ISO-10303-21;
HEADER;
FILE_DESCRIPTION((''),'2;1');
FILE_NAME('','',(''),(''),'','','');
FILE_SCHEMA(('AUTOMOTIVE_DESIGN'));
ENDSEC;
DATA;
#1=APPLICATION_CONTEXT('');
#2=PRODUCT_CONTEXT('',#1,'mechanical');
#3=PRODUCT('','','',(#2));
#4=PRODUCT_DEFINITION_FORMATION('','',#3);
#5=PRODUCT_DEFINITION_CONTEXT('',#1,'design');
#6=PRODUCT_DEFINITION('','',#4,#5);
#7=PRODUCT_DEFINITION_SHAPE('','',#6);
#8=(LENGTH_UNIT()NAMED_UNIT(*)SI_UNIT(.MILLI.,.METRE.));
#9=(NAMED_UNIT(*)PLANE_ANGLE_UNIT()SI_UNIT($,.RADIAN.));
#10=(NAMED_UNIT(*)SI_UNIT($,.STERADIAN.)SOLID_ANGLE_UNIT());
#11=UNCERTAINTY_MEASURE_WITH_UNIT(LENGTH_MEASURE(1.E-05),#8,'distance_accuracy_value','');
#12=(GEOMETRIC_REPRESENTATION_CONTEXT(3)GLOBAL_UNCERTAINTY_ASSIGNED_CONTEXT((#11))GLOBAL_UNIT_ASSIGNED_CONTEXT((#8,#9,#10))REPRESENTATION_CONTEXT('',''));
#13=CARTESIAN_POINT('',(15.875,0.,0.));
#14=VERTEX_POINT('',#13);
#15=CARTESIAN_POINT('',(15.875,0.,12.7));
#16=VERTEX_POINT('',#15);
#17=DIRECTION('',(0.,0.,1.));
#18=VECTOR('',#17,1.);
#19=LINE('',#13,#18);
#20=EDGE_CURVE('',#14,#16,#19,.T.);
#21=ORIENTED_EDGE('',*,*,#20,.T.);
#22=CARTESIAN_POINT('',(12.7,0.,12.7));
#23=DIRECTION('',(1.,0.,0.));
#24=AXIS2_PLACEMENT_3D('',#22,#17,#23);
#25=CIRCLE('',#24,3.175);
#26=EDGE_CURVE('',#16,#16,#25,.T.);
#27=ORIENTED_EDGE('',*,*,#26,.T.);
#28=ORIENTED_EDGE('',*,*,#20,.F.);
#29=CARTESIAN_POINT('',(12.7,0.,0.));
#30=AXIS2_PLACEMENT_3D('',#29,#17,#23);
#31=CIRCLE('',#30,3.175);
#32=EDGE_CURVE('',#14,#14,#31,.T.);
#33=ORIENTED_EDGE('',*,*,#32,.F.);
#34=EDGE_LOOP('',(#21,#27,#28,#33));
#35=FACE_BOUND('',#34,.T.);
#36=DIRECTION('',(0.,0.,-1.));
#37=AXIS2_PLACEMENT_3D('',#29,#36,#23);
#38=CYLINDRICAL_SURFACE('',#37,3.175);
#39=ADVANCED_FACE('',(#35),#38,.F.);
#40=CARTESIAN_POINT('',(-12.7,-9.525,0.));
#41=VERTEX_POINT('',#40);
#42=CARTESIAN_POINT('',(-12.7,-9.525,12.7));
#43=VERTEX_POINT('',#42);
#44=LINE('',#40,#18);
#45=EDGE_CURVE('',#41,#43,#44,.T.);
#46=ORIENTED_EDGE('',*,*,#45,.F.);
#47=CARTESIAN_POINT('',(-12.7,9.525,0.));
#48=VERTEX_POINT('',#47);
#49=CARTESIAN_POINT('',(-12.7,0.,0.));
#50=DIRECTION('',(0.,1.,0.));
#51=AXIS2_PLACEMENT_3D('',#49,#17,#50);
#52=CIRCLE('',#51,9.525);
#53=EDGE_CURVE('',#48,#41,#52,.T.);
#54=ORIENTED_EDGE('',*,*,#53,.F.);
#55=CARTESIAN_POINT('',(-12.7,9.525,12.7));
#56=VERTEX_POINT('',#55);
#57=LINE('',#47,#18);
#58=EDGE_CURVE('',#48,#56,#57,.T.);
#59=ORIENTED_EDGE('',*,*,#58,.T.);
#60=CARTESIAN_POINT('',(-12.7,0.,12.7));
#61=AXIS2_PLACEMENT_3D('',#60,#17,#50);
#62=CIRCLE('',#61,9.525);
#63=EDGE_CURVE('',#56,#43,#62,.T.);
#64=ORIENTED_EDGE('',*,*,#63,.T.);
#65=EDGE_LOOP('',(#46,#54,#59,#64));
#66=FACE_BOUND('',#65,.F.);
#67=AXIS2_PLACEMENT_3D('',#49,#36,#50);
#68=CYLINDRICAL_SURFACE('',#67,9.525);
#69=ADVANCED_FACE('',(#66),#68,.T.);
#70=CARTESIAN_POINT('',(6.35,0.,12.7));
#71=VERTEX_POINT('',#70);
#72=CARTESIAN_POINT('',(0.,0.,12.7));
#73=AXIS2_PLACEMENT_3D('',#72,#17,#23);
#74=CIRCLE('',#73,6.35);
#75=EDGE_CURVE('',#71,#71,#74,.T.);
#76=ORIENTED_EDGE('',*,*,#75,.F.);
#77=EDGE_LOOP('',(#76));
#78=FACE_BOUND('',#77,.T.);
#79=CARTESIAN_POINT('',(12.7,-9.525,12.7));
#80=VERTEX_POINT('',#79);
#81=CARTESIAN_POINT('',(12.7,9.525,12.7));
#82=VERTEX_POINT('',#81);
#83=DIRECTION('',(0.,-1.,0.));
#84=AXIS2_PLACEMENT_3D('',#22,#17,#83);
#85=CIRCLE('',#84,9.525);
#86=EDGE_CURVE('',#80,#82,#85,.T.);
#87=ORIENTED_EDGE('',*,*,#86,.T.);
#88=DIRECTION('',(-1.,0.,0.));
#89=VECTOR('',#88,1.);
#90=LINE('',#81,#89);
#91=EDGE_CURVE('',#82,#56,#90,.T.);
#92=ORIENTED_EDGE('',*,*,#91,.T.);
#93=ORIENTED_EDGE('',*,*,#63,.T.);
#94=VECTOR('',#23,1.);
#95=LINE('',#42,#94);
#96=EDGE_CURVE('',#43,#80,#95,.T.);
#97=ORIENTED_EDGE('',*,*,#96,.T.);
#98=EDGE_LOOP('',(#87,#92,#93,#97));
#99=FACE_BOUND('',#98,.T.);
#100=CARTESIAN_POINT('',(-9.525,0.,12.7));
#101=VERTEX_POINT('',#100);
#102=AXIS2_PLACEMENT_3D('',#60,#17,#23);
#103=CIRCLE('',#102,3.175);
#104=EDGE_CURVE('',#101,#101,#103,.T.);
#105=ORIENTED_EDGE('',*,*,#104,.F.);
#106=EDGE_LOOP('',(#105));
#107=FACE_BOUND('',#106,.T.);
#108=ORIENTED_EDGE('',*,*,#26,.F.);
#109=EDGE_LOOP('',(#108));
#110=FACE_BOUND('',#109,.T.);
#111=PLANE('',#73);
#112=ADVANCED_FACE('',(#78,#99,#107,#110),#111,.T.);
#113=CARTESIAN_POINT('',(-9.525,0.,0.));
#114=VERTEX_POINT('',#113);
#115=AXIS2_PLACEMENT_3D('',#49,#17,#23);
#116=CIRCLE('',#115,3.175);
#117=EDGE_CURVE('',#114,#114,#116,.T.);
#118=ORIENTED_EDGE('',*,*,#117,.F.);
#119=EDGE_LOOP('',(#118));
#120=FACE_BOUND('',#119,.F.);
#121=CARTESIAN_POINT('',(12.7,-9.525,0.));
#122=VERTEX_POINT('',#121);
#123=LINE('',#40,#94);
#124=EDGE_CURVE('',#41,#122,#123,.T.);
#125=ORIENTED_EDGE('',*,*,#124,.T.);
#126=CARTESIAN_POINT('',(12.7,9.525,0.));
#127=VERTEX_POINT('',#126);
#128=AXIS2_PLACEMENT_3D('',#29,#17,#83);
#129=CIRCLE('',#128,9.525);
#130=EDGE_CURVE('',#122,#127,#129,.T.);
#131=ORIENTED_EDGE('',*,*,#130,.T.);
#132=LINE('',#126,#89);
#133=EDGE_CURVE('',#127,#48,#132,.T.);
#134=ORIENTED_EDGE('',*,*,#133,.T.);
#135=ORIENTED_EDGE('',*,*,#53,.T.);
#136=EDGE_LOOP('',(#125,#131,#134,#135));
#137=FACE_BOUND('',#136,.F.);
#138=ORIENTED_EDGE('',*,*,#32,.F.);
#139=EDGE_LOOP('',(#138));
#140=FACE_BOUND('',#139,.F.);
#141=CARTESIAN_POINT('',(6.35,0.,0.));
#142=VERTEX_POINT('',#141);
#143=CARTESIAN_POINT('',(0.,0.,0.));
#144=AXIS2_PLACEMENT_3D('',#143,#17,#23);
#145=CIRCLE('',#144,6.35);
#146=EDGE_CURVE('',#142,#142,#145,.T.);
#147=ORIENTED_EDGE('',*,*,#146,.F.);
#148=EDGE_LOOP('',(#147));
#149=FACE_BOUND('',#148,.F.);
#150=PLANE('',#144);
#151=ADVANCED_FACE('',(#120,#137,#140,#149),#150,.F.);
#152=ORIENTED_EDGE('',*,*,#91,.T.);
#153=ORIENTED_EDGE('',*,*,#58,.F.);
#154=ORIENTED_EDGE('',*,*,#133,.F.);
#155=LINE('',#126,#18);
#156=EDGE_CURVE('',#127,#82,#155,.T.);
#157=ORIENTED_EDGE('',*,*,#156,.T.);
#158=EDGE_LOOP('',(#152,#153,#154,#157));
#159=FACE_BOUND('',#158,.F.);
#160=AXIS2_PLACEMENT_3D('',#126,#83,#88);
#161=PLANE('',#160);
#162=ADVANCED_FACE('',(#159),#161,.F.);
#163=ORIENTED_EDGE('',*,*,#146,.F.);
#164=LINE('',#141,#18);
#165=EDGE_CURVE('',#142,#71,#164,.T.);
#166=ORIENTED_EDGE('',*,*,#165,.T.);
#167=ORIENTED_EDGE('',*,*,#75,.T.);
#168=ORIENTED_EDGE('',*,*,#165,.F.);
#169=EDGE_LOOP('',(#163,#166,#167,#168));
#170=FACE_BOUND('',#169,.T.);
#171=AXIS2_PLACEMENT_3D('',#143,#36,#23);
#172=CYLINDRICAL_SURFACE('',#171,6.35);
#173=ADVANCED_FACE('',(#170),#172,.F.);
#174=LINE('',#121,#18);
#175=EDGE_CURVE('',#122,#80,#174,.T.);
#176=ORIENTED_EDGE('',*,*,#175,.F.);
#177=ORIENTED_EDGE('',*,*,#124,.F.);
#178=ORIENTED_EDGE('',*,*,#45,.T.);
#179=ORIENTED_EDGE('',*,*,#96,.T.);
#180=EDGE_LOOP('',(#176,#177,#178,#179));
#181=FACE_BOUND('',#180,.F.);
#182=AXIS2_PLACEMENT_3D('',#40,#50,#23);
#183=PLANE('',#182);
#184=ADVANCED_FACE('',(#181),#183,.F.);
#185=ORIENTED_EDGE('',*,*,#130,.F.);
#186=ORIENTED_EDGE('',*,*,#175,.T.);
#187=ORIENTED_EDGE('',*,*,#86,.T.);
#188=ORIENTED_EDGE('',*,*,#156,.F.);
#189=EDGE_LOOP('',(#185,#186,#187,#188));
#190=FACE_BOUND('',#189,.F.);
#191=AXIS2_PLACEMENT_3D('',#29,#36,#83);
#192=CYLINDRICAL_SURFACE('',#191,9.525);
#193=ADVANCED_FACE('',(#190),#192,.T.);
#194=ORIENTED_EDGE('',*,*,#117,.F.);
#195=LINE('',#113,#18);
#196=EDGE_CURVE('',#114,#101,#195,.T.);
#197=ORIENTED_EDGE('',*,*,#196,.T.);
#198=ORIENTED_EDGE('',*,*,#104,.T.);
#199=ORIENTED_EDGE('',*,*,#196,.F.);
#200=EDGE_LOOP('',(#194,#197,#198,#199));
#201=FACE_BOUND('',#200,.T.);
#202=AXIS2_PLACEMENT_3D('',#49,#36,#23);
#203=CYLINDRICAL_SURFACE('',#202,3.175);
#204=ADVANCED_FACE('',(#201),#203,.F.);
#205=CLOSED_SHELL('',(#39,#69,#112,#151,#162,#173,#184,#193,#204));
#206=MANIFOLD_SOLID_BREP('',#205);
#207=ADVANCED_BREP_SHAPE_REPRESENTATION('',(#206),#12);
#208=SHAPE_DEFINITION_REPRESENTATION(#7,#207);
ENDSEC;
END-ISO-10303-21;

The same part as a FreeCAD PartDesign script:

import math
import FreeCAD as App
import Part
import Sketcher

V = App.Vector
Q = App.Units.Quantity

doc = App.newDocument("Part")
body = doc.addObject("PartDesign::Body", "Body")

# Sketch on XY plane
sketch1 = body.newObject("Sketcher::SketchObject", "Sketch")
sketch1.AttachmentSupport = (doc.getObject("XY_Plane"), [""])
sketch1.MapMode = "FlatFace"
sketch1.addGeometry([
    Part.ArcOfCircle(Part.Circle(V(12.7, 0, 0), V(0, 0, 1), 9.5), math.radians(-90), math.radians(90)),  # 0
    Part.LineSegment(V(12.7, 9.5, 0), V(-12.7, 9.5, 0)),  # 1
    Part.ArcOfCircle(Part.Circle(V(-12.7, 0, 0), V(0, 0, 1), 9.5), math.radians(90), math.radians(270)),  # 2
    Part.LineSegment(V(-12.7, -9.5, 0), V(12.7, -9.5, 0)),  # 3
    Part.Circle(V(-12.7, 0, 0), V(0, 0, 1), 3.2),  # 4
    Part.Circle(V(0, 0, 0), V(0, 0, 1), 6.3),  # 5
    Part.Circle(V(12.7, 0, 0), V(0, 0, 1), 3.2),  # 6
], False)
sketch1.addConstraint([
    Sketcher.Constraint("Tangent", 0, 2, 1, 1),
    Sketcher.Constraint("Tangent", 1, 2, 2, 1),
    Sketcher.Constraint("Tangent", 2, 2, 3, 1),
    Sketcher.Constraint("Tangent", 3, 2, 0, 1),
    Sketcher.Constraint("Horizontal", 1),
    Sketcher.Constraint("Horizontal", 3),
    Sketcher.Constraint("Coincident", 5, 3, -1, 1),
    Sketcher.Constraint("Coincident", 4, 3, 2, 3),
    Sketcher.Constraint("Coincident", 6, 3, 0, 3),
    Sketcher.Constraint("Equal", 4, 6),
    Sketcher.Constraint("Symmetric", 0, 3, 2, 3, -1, 1),
    Sketcher.Constraint("Diameter", 5, Q("0.5 in")),
    Sketcher.Constraint("Diameter", 4, Q("0.25 in")),
    Sketcher.Constraint("DistanceX", 1, 2, 1, 1, Q("1 in")),
    Sketcher.Constraint("Radius", 0, Q("0.375 in")),
])
pad1 = body.newObject("PartDesign::Pad", "Pad")
pad1.Profile = sketch1
pad1.Length = Q("0.5 in")

doc.recompute()
